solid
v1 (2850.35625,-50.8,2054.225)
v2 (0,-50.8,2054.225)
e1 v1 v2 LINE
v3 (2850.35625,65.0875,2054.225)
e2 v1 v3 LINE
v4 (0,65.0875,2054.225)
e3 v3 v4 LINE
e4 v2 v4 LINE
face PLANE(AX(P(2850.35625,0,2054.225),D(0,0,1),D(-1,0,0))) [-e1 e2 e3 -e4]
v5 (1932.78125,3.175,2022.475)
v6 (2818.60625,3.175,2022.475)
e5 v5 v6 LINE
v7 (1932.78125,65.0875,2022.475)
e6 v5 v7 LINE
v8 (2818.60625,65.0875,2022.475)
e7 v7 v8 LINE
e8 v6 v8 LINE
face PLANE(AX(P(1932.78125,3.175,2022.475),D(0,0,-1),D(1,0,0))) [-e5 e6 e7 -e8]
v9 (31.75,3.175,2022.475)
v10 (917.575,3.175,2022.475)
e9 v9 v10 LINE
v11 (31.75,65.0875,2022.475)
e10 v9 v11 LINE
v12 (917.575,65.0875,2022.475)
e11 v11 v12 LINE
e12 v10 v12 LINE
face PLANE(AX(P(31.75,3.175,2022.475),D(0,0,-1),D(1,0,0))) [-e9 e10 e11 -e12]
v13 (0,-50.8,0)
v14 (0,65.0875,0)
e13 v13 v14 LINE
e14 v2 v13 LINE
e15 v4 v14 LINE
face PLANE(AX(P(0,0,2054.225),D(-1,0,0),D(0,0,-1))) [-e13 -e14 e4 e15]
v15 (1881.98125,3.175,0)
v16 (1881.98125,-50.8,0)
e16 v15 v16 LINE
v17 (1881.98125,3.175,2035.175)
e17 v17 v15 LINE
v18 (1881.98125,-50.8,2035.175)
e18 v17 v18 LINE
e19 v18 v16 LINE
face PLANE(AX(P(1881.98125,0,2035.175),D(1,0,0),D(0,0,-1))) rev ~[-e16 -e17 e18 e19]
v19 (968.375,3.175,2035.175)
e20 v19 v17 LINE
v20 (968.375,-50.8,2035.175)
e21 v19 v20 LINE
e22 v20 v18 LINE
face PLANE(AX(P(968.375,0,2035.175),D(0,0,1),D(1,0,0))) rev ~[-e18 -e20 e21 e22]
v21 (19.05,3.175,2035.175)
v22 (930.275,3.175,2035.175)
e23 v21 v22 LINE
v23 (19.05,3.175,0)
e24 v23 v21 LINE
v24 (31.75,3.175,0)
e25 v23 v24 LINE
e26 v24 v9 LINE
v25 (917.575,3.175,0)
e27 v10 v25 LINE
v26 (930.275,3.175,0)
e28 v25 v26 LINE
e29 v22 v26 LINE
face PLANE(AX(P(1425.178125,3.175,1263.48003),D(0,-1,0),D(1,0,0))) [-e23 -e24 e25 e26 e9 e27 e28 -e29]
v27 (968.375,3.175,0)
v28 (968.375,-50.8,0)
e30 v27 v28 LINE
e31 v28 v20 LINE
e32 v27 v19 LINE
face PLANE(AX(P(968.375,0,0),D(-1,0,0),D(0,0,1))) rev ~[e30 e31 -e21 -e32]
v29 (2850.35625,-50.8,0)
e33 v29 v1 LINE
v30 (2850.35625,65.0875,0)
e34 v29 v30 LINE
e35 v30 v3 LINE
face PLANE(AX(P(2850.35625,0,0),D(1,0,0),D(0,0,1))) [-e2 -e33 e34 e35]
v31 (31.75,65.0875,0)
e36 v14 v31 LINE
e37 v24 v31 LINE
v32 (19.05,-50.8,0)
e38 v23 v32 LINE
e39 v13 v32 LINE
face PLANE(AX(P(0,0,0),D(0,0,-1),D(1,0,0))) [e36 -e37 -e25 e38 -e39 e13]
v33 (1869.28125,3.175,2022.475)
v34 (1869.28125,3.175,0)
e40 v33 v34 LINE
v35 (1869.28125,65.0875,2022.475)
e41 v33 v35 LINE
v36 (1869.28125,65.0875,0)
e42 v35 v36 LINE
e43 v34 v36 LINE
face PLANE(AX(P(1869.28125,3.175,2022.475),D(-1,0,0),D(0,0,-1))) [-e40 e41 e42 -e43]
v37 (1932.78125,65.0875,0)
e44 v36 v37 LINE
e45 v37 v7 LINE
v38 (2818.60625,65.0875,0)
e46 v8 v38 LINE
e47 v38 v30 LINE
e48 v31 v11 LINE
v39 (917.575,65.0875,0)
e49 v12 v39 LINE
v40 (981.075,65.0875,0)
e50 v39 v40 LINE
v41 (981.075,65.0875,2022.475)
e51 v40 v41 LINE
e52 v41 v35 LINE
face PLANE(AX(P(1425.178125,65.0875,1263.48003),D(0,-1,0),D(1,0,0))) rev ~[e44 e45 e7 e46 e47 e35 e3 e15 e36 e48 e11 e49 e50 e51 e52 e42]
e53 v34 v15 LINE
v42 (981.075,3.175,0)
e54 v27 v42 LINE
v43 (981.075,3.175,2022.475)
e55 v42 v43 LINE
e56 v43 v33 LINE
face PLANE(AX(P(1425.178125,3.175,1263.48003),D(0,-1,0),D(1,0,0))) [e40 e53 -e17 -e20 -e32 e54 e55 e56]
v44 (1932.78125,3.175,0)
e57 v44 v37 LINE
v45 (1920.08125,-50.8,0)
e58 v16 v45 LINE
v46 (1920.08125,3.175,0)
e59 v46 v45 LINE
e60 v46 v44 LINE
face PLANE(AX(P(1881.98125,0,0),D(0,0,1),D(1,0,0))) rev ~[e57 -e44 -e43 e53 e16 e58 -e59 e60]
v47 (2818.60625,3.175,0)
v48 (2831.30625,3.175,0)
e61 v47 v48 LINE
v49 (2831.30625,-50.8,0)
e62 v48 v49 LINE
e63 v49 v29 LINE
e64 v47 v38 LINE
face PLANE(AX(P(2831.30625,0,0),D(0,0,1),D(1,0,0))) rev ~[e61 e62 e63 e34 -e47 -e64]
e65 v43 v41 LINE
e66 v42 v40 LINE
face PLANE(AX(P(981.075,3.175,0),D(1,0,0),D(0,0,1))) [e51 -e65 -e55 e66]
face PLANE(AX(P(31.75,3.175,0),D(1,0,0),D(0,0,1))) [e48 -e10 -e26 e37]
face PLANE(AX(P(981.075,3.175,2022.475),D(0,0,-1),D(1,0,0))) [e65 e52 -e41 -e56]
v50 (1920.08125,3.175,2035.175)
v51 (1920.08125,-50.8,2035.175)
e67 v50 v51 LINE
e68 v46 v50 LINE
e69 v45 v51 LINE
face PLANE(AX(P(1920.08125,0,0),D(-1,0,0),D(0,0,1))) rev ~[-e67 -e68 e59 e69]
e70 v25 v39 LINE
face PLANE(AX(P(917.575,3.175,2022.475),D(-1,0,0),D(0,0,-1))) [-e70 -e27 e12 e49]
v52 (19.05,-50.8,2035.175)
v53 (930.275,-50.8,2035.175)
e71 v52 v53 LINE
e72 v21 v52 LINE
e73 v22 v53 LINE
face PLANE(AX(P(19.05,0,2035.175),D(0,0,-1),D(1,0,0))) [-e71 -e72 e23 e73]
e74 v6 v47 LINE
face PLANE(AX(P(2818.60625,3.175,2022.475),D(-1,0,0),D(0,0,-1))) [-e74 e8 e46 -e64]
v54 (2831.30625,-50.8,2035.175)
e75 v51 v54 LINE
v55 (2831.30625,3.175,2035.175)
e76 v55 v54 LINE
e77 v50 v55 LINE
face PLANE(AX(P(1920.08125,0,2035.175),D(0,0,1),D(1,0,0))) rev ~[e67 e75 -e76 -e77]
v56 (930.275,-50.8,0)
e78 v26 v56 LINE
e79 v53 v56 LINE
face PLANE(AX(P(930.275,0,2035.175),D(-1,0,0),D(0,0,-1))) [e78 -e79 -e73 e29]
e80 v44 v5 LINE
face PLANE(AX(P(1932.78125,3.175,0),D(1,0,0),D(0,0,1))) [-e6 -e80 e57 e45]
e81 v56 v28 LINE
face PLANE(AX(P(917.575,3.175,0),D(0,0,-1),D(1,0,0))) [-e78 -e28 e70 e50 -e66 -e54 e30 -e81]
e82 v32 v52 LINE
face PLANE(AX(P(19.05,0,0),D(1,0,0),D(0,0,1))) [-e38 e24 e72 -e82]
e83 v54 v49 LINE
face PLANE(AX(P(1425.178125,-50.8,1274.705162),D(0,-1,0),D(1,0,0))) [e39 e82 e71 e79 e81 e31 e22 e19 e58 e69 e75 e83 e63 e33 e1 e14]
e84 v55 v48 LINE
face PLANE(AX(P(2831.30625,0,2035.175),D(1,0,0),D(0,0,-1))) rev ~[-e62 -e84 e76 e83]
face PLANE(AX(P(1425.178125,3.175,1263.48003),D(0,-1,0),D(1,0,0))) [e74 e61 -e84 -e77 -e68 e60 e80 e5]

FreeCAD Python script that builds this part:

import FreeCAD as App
import Part
import Sketcher
from FreeCAD import Vector
Q = App.Units.Quantity


def add_polygon(sketch, points):
    """Adds a closed chain of lines whose ends are joined by coincident constraints."""
    first, n = sketch.GeometryCount, len(points)
    for a, b in zip(points, points[1:] + points[:1]):
        sketch.addGeometry(Part.LineSegment(App.Vector(*a, 0), App.Vector(*b, 0)), False)
    for i in range(n):
        sketch.addConstraint(Sketcher.Constraint("Coincident", first + i, 2, first + (i + 1) % n, 1))

doc = App.newDocument("Part")
body = doc.addObject("PartDesign::Body", "Body")

sketch1 = body.newObject("Sketcher::SketchObject", "Sketch")
sketch1.AttachmentSupport = (doc.getObject("XZ_Plane"), [""])
sketch1.MapMode = "FlatFace"
sketch1.AttachmentOffset = App.Placement(Vector(0, 0, -0.125 * 25.4), App.Rotation())
add_polygon(sketch1, [(0, 0), (32, 0), (32, 2022), (918, 2022), (918, 0), (981, 0), (981, 2022), (1869, 2022), (1869, 0), (1933, 0), (1933, 2022), (2819, 2022), (2819, 0), (2850, 0), (2850, 2054), (0, 2054)])
sketch1.addConstraint([
    Sketcher.Constraint("Horizontal", 0),
    Sketcher.Constraint("Vertical", 1),
    Sketcher.Constraint("Horizontal", 2),
    Sketcher.Constraint("Vertical", 3),
    Sketcher.Constraint("Horizontal", 4),
    Sketcher.Constraint("Vertical", 5),
    Sketcher.Constraint("Horizontal", 6),
    Sketcher.Constraint("Vertical", 7),
    Sketcher.Constraint("Horizontal", 8),
    Sketcher.Constraint("Vertical", 9),
    Sketcher.Constraint("Horizontal", 10),
    Sketcher.Constraint("Vertical", 11),
    Sketcher.Constraint("Horizontal", 12),
    Sketcher.Constraint("Vertical", 13),
    Sketcher.Constraint("Horizontal", 14),
    Sketcher.Constraint("Vertical", 15),
    Sketcher.Constraint("Coincident", 15, 2, -1, 1),
    Sketcher.Constraint("PointOnObject", 3, 2, -1),
    Sketcher.Constraint("PointOnObject", 7, 2, -1),
    Sketcher.Constraint("PointOnObject", 11, 2, -1),
    Sketcher.Constraint("Horizontal", 2, 2, 5, 2),
    Sketcher.Constraint("Horizontal", 6, 2, 9, 2),
    Sketcher.Constraint("Equal", 4, 8),
    Sketcher.Constraint("Equal", 2, 10),
    Sketcher.Constraint("Equal", 0, 12),
    Sketcher.Constraint("DistanceX", 4, 1, 4, 2, Q("2.5 in")),
    Sketcher.Constraint("DistanceX", 0, 1, 0, 2, Q("1.25 in")),
    Sketcher.Constraint("DistanceX", 2, 1, 2, 2, Q("34.875 in")),
    Sketcher.Constraint("DistanceX", 6, 1, 6, 2, Q("34.96875 in")),
    Sketcher.Constraint("DistanceY", 1, 1, 1, 2, Q("79.625 in")),
    Sketcher.Constraint("DistanceY", 13, 1, 13, 2, Q("80.875 in")),
])
pad1 = body.newObject("PartDesign::Pad", "Pad")
pad1.Profile = sketch1
pad1.Length = Q("2.4375 in")
pad1.Reversed = True

sketch2 = body.newObject("Sketcher::SketchObject", "Sketch001")
sketch2.AttachmentSupport = (doc.getObject("XZ_Plane"), [""])
sketch2.MapMode = "FlatFace"
add_polygon(sketch2, [(0, 0), (19, 0), (19, 2035), (930, 2035), (930, 0), (968, 0), (968, 2035), (1882, 2035), (1882, 0), (1920, 0), (1920, 2035), (2831, 2035), (2831, 0), (2850, 0), (2850, 2054), (0, 2054)])
sketch2.addConstraint([
    Sketcher.Constraint("Horizontal", 0),
    Sketcher.Constraint("Vertical", 1),
    Sketcher.Constraint("Horizontal", 2),
    Sketcher.Constraint("Vertical", 3),
    Sketcher.Constraint("Horizontal", 4),
    Sketcher.Constraint("Vertical", 5),
    Sketcher.Constraint("Horizontal", 6),
    Sketcher.Constraint("Vertical", 7),
    Sketcher.Constraint("Horizontal", 8),
    Sketcher.Constraint("Vertical", 9),
    Sketcher.Constraint("Horizontal", 10),
    Sketcher.Constraint("Vertical", 11),
    Sketcher.Constraint("Horizontal", 12),
    Sketcher.Constraint("Vertical", 13),
    Sketcher.Constraint("Horizontal", 14),
    Sketcher.Constraint("Vertical", 15),
    Sketcher.Constraint("Coincident", 15, 2, -1, 1),
    Sketcher.Constraint("PointOnObject", 3, 2, -1),
    Sketcher.Constraint("PointOnObject", 7, 2, -1),
    Sketcher.Constraint("PointOnObject", 11, 2, -1),
    Sketcher.Constraint("Horizontal", 2, 2, 5, 2),
    Sketcher.Constraint("Horizontal", 6, 2, 9, 2),
    Sketcher.Constraint("Equal", 4, 8),
    Sketcher.Constraint("Equal", 2, 10),
    Sketcher.Constraint("Equal", 0, 12),
    Sketcher.Constraint("DistanceX", 4, 1, 4, 2, Q("1.5 in")),
    Sketcher.Constraint("DistanceX", 0, 1, 0, 2, Q("0.75 in")),
    Sketcher.Constraint("DistanceX", 2, 1, 2, 2, Q("35.875 in")),
    Sketcher.Constraint("DistanceX", 6, 1, 6, 2, Q("35.96875 in")),
    Sketcher.Constraint("DistanceY", 1, 1, 1, 2, Q("80.125 in")),
    Sketcher.Constraint("DistanceY", 13, 1, 13, 2, Q("80.875 in")),
])
pad2 = body.newObject("PartDesign::Pad", "Pad001")
pad2.Profile = sketch2
pad2.Type = "TwoLengths"
pad2.Length = Q("2 in")
pad2.Length2 = Q("0.125 in")

doc.recompute()
